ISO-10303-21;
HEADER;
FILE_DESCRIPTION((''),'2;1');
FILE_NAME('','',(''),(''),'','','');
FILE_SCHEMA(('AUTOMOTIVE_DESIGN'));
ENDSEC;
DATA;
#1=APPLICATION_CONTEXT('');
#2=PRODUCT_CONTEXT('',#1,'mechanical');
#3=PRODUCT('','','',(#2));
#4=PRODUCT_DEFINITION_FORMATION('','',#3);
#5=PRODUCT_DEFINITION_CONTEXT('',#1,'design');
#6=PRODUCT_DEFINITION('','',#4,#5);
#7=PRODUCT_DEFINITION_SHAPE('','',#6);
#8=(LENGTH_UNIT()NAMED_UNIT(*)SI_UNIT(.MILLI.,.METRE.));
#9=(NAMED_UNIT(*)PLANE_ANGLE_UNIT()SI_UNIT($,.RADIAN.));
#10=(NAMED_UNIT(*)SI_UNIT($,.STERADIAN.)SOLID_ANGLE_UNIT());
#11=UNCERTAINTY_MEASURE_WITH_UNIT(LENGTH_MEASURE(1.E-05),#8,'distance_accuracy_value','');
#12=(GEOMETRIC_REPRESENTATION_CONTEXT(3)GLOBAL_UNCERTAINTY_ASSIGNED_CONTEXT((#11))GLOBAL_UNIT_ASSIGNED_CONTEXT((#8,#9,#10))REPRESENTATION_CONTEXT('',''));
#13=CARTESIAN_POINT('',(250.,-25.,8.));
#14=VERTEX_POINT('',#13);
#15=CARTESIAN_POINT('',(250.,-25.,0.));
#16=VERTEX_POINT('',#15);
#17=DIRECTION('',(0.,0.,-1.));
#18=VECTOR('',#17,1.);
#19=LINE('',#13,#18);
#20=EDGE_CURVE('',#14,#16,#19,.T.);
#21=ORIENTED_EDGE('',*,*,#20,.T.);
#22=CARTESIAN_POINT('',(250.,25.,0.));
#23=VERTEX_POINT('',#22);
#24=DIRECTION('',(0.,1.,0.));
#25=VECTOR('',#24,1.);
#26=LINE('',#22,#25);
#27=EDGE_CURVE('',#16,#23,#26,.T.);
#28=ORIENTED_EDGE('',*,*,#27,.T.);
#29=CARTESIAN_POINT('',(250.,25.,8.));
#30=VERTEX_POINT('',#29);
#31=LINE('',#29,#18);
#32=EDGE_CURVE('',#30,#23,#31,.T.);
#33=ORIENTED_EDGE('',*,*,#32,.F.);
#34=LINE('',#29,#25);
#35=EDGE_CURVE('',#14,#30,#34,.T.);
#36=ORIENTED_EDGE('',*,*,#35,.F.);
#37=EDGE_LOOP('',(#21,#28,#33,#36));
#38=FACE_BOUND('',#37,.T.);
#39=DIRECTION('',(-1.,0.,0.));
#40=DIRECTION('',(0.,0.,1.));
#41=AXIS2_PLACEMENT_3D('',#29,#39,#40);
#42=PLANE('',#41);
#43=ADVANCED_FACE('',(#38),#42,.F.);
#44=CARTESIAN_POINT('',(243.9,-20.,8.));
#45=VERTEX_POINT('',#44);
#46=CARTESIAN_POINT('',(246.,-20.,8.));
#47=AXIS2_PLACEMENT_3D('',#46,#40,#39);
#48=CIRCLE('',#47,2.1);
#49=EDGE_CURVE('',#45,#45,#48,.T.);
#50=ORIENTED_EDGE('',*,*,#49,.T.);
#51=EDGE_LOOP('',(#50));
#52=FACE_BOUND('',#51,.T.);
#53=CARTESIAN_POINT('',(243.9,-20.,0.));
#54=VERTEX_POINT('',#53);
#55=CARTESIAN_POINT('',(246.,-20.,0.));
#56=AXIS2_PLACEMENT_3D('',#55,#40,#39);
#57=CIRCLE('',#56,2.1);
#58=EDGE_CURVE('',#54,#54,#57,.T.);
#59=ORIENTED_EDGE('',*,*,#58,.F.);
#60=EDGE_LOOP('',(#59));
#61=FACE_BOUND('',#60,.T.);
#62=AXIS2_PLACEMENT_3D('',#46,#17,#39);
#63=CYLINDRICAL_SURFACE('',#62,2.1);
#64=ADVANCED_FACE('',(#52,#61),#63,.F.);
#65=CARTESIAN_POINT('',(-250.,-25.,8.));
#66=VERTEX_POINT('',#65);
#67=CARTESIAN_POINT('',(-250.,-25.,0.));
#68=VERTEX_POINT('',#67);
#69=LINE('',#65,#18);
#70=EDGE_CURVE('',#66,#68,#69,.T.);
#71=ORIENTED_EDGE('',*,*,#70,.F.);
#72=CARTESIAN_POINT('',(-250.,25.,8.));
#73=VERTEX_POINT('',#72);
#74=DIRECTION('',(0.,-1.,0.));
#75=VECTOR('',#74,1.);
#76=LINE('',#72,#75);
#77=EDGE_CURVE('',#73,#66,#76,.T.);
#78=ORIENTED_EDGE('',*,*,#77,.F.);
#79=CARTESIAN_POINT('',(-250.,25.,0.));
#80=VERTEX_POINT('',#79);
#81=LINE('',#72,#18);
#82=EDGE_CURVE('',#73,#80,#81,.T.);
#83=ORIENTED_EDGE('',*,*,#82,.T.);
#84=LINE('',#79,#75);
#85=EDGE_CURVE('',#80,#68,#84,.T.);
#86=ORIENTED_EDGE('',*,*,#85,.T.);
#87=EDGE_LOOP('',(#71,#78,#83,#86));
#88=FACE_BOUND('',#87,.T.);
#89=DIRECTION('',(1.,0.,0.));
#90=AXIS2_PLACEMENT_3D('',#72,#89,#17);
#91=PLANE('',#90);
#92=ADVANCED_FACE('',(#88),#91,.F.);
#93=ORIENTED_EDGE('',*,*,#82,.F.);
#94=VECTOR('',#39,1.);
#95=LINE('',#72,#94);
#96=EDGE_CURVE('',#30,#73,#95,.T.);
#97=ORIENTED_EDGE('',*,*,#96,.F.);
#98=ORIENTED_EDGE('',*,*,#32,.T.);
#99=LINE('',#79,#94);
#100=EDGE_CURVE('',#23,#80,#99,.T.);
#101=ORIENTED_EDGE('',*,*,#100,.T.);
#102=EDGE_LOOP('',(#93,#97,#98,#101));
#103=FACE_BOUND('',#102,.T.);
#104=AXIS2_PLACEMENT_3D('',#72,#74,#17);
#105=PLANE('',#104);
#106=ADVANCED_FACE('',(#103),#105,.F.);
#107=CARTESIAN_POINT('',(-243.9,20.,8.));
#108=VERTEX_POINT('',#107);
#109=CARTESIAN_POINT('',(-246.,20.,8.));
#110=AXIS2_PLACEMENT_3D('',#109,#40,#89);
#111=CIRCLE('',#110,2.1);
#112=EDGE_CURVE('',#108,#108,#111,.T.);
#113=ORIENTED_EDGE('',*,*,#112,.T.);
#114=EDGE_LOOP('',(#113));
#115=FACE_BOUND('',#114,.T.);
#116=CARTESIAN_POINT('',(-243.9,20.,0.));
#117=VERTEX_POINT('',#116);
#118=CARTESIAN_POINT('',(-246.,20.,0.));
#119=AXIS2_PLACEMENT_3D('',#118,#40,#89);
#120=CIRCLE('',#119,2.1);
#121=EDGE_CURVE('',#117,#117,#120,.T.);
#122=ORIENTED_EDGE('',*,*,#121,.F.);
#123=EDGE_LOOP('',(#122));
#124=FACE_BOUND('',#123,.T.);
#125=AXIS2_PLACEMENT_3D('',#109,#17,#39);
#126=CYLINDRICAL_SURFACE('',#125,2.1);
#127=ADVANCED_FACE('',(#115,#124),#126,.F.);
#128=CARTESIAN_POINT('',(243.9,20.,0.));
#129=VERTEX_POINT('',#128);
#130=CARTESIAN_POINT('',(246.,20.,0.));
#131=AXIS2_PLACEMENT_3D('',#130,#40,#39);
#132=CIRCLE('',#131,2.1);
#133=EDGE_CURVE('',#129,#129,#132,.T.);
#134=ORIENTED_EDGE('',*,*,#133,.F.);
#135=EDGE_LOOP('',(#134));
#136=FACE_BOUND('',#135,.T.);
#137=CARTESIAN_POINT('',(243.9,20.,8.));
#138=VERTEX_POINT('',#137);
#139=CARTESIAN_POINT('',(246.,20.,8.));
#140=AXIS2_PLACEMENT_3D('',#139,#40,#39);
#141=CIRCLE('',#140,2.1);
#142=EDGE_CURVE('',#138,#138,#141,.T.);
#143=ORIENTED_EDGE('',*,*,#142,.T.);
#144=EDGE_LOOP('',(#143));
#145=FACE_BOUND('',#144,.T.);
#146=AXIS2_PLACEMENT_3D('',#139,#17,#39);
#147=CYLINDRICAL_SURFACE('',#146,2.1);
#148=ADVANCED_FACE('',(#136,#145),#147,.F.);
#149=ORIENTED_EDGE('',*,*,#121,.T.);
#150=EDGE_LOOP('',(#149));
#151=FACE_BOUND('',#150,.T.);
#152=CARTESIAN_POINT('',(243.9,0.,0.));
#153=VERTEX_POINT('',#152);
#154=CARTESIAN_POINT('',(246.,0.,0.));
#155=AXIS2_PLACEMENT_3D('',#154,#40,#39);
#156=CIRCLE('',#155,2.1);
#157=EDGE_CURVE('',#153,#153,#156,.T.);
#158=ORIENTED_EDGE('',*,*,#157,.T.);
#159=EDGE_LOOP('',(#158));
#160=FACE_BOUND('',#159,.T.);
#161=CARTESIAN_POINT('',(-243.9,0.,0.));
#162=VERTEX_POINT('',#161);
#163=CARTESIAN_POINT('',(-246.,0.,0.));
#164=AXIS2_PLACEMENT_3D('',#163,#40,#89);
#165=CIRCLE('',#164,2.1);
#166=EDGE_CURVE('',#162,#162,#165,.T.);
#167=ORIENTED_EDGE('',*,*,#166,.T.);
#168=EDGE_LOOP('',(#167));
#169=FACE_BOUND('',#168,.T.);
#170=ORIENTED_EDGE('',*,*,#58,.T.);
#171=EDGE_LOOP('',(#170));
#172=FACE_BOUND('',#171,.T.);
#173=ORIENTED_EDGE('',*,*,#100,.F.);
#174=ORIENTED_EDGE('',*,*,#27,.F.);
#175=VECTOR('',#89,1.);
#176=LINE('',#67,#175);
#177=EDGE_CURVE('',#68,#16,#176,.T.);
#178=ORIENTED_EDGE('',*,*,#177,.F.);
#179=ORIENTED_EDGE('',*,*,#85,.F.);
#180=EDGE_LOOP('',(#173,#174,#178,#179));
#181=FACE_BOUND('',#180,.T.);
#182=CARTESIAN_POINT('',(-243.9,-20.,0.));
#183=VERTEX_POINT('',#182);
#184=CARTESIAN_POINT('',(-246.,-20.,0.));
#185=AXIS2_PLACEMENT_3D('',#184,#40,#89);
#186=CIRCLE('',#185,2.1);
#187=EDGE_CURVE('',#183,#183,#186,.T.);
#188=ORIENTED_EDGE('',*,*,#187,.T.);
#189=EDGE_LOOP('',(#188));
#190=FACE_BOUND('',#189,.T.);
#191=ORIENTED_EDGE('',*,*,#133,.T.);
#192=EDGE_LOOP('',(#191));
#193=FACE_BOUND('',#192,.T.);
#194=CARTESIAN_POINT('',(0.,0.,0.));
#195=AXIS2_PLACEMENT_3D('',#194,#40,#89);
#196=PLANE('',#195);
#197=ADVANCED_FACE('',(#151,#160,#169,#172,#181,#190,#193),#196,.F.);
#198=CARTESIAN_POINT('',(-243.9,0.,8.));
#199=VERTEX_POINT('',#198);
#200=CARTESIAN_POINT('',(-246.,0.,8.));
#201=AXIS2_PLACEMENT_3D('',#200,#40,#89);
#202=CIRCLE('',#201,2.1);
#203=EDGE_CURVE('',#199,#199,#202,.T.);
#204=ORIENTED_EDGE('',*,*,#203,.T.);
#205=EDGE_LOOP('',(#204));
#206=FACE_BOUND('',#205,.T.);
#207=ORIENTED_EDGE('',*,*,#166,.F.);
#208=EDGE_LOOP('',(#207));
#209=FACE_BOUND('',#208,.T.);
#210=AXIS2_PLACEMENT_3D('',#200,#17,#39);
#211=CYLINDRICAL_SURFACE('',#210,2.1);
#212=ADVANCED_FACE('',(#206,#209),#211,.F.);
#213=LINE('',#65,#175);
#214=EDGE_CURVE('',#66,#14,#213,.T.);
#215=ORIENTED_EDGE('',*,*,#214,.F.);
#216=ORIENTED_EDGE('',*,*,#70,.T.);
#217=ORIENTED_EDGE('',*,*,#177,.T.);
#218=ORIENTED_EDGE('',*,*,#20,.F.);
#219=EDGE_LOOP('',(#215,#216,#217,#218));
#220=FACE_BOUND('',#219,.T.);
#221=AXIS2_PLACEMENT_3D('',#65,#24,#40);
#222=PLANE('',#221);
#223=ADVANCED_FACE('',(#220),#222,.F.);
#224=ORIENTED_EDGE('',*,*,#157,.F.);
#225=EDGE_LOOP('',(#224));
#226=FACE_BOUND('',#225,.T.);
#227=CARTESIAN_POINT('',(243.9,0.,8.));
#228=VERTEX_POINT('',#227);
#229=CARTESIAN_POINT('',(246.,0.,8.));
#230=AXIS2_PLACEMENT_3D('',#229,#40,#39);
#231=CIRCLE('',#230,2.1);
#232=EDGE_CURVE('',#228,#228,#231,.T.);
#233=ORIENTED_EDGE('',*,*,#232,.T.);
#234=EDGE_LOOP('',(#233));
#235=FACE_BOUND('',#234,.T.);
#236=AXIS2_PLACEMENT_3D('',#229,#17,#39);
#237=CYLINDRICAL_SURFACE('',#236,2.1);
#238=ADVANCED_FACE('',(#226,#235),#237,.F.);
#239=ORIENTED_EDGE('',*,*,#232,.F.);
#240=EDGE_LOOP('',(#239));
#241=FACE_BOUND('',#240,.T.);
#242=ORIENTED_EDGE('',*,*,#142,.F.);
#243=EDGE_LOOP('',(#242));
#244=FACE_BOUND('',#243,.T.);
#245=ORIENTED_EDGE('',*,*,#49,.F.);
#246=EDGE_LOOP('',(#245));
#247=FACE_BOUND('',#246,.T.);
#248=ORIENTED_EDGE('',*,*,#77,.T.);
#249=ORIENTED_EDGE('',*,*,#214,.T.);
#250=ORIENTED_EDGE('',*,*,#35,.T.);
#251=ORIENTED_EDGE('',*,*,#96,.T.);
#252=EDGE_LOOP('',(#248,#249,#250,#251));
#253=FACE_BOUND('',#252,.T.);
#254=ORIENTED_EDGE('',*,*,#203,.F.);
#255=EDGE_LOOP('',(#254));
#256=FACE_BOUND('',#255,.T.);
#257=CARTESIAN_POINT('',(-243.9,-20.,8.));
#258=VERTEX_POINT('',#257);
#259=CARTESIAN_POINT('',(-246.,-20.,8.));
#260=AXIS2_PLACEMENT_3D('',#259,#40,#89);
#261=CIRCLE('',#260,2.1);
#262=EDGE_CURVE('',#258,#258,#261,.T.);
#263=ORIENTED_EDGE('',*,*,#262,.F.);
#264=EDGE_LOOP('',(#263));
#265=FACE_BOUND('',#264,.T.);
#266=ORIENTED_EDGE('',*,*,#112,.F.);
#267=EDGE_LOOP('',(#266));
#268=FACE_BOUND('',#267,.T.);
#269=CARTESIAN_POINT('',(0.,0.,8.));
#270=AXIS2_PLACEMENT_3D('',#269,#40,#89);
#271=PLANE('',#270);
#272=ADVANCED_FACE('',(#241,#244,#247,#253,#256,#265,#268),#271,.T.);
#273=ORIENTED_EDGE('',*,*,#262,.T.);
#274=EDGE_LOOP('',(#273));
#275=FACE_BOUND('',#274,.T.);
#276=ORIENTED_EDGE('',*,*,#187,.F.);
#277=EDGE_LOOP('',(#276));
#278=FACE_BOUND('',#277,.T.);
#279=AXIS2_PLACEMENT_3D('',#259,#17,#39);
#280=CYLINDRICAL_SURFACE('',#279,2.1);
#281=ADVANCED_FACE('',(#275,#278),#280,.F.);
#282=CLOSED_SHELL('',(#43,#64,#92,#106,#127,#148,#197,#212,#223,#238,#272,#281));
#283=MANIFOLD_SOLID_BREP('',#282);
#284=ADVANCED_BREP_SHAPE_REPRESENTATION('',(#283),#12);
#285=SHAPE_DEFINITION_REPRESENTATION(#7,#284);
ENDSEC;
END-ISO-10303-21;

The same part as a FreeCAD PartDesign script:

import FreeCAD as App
import Part
import Sketcher
from FreeCAD import Vector
Q = App.Units.Quantity

doc = App.newDocument("Part")
body = doc.addObject("PartDesign::Body", "Body")

sketch1 = doc.addObject("Sketcher::SketchObject", "Sketch")
body.addObject(sketch1)
sketch1.AttachmentSupport = (doc.XY_Plane, [""])
sketch1.MapMode = "FlatFace"
sketch1.addGeometry([
    Part.LineSegment(Vector(-250, 25, 0), Vector(-250, -25, 0)),
    Part.LineSegment(Vector(-250, -25, 0), Vector(250, -25, 0)),
    Part.LineSegment(Vector(250, -25, 0), Vector(250, 25, 0)),
    Part.LineSegment(Vector(250, 25, 0), Vector(-250, 25, 0)),
    Part.Circle(Vector(-246, -20, 0), Vector(0, 0, 1), 2.1),
    Part.Circle(Vector(246, -20, 0), Vector(0, 0, 1), 2.1),
    Part.Circle(Vector(-246, 0, 0), Vector(0, 0, 1), 2.1),
    Part.Circle(Vector(-246, 20, 0), Vector(0, 0, 1), 2.1),
    Part.Circle(Vector(246, 0, 0), Vector(0, 0, 1), 2.1),
    Part.Circle(Vector(246, 20, 0), Vector(0, 0, 1), 2.1),
], False)
sketch1.addConstraint([
    Sketcher.Constraint("Coincident", 0, 2, 1, 1),
    Sketcher.Constraint("Coincident", 1, 2, 2, 1),
    Sketcher.Constraint("Coincident", 2, 2, 3, 1),
    Sketcher.Constraint("Coincident", 3, 2, 0, 1),
    Sketcher.Constraint("Vertical", 0),
    Sketcher.Constraint("Horizontal", 1),
    Sketcher.Constraint("Vertical", 2),
    Sketcher.Constraint("Horizontal", 3),
    Sketcher.Constraint("Equal", 4, 5),
    Sketcher.Constraint("Equal", 5, 6),
    Sketcher.Constraint("Equal", 6, 7),
    Sketcher.Constraint("Equal", 7, 8),
    Sketcher.Constraint("Equal", 8, 9),
    Sketcher.Constraint("Symmetric", 5, 3, 7, 3, -1, 1),
    Sketcher.Constraint("Symmetric", 6, 3, 8, 3, -1, 1),
    Sketcher.Constraint("Symmetric", 4, 3, 9, 3, -1, 1),
    Sketcher.Constraint("Symmetric", 0, 2, 2, 2, -1, 1),
    Sketcher.Constraint("Symmetric", 4, 3, 5, 3, -2),
    Sketcher.Constraint("PointOnObject", 6, 3, -1),
    Sketcher.Constraint("Vertical", 4, 3, 6, 3),
    Sketcher.Constraint("Diameter", 4, Q("4.2 mm")),
    Sketcher.Constraint("DistanceX", 1, 1, 1, 2, Q("500 mm")),
    Sketcher.Constraint("DistanceY", 0, 2, 0, 1, Q("50 mm")),
    Sketcher.Constraint("DistanceX", 4, 3, -1, 1, Q("246 mm")),
    Sketcher.Constraint("DistanceY", 4, 3, -1, 1, Q("20 mm")),
])
pad1 = doc.addObject("PartDesign::Pad", "Pad")
body.addObject(pad1)
pad1.Profile = sketch1
pad1.Length = 8

doc.recompute()
